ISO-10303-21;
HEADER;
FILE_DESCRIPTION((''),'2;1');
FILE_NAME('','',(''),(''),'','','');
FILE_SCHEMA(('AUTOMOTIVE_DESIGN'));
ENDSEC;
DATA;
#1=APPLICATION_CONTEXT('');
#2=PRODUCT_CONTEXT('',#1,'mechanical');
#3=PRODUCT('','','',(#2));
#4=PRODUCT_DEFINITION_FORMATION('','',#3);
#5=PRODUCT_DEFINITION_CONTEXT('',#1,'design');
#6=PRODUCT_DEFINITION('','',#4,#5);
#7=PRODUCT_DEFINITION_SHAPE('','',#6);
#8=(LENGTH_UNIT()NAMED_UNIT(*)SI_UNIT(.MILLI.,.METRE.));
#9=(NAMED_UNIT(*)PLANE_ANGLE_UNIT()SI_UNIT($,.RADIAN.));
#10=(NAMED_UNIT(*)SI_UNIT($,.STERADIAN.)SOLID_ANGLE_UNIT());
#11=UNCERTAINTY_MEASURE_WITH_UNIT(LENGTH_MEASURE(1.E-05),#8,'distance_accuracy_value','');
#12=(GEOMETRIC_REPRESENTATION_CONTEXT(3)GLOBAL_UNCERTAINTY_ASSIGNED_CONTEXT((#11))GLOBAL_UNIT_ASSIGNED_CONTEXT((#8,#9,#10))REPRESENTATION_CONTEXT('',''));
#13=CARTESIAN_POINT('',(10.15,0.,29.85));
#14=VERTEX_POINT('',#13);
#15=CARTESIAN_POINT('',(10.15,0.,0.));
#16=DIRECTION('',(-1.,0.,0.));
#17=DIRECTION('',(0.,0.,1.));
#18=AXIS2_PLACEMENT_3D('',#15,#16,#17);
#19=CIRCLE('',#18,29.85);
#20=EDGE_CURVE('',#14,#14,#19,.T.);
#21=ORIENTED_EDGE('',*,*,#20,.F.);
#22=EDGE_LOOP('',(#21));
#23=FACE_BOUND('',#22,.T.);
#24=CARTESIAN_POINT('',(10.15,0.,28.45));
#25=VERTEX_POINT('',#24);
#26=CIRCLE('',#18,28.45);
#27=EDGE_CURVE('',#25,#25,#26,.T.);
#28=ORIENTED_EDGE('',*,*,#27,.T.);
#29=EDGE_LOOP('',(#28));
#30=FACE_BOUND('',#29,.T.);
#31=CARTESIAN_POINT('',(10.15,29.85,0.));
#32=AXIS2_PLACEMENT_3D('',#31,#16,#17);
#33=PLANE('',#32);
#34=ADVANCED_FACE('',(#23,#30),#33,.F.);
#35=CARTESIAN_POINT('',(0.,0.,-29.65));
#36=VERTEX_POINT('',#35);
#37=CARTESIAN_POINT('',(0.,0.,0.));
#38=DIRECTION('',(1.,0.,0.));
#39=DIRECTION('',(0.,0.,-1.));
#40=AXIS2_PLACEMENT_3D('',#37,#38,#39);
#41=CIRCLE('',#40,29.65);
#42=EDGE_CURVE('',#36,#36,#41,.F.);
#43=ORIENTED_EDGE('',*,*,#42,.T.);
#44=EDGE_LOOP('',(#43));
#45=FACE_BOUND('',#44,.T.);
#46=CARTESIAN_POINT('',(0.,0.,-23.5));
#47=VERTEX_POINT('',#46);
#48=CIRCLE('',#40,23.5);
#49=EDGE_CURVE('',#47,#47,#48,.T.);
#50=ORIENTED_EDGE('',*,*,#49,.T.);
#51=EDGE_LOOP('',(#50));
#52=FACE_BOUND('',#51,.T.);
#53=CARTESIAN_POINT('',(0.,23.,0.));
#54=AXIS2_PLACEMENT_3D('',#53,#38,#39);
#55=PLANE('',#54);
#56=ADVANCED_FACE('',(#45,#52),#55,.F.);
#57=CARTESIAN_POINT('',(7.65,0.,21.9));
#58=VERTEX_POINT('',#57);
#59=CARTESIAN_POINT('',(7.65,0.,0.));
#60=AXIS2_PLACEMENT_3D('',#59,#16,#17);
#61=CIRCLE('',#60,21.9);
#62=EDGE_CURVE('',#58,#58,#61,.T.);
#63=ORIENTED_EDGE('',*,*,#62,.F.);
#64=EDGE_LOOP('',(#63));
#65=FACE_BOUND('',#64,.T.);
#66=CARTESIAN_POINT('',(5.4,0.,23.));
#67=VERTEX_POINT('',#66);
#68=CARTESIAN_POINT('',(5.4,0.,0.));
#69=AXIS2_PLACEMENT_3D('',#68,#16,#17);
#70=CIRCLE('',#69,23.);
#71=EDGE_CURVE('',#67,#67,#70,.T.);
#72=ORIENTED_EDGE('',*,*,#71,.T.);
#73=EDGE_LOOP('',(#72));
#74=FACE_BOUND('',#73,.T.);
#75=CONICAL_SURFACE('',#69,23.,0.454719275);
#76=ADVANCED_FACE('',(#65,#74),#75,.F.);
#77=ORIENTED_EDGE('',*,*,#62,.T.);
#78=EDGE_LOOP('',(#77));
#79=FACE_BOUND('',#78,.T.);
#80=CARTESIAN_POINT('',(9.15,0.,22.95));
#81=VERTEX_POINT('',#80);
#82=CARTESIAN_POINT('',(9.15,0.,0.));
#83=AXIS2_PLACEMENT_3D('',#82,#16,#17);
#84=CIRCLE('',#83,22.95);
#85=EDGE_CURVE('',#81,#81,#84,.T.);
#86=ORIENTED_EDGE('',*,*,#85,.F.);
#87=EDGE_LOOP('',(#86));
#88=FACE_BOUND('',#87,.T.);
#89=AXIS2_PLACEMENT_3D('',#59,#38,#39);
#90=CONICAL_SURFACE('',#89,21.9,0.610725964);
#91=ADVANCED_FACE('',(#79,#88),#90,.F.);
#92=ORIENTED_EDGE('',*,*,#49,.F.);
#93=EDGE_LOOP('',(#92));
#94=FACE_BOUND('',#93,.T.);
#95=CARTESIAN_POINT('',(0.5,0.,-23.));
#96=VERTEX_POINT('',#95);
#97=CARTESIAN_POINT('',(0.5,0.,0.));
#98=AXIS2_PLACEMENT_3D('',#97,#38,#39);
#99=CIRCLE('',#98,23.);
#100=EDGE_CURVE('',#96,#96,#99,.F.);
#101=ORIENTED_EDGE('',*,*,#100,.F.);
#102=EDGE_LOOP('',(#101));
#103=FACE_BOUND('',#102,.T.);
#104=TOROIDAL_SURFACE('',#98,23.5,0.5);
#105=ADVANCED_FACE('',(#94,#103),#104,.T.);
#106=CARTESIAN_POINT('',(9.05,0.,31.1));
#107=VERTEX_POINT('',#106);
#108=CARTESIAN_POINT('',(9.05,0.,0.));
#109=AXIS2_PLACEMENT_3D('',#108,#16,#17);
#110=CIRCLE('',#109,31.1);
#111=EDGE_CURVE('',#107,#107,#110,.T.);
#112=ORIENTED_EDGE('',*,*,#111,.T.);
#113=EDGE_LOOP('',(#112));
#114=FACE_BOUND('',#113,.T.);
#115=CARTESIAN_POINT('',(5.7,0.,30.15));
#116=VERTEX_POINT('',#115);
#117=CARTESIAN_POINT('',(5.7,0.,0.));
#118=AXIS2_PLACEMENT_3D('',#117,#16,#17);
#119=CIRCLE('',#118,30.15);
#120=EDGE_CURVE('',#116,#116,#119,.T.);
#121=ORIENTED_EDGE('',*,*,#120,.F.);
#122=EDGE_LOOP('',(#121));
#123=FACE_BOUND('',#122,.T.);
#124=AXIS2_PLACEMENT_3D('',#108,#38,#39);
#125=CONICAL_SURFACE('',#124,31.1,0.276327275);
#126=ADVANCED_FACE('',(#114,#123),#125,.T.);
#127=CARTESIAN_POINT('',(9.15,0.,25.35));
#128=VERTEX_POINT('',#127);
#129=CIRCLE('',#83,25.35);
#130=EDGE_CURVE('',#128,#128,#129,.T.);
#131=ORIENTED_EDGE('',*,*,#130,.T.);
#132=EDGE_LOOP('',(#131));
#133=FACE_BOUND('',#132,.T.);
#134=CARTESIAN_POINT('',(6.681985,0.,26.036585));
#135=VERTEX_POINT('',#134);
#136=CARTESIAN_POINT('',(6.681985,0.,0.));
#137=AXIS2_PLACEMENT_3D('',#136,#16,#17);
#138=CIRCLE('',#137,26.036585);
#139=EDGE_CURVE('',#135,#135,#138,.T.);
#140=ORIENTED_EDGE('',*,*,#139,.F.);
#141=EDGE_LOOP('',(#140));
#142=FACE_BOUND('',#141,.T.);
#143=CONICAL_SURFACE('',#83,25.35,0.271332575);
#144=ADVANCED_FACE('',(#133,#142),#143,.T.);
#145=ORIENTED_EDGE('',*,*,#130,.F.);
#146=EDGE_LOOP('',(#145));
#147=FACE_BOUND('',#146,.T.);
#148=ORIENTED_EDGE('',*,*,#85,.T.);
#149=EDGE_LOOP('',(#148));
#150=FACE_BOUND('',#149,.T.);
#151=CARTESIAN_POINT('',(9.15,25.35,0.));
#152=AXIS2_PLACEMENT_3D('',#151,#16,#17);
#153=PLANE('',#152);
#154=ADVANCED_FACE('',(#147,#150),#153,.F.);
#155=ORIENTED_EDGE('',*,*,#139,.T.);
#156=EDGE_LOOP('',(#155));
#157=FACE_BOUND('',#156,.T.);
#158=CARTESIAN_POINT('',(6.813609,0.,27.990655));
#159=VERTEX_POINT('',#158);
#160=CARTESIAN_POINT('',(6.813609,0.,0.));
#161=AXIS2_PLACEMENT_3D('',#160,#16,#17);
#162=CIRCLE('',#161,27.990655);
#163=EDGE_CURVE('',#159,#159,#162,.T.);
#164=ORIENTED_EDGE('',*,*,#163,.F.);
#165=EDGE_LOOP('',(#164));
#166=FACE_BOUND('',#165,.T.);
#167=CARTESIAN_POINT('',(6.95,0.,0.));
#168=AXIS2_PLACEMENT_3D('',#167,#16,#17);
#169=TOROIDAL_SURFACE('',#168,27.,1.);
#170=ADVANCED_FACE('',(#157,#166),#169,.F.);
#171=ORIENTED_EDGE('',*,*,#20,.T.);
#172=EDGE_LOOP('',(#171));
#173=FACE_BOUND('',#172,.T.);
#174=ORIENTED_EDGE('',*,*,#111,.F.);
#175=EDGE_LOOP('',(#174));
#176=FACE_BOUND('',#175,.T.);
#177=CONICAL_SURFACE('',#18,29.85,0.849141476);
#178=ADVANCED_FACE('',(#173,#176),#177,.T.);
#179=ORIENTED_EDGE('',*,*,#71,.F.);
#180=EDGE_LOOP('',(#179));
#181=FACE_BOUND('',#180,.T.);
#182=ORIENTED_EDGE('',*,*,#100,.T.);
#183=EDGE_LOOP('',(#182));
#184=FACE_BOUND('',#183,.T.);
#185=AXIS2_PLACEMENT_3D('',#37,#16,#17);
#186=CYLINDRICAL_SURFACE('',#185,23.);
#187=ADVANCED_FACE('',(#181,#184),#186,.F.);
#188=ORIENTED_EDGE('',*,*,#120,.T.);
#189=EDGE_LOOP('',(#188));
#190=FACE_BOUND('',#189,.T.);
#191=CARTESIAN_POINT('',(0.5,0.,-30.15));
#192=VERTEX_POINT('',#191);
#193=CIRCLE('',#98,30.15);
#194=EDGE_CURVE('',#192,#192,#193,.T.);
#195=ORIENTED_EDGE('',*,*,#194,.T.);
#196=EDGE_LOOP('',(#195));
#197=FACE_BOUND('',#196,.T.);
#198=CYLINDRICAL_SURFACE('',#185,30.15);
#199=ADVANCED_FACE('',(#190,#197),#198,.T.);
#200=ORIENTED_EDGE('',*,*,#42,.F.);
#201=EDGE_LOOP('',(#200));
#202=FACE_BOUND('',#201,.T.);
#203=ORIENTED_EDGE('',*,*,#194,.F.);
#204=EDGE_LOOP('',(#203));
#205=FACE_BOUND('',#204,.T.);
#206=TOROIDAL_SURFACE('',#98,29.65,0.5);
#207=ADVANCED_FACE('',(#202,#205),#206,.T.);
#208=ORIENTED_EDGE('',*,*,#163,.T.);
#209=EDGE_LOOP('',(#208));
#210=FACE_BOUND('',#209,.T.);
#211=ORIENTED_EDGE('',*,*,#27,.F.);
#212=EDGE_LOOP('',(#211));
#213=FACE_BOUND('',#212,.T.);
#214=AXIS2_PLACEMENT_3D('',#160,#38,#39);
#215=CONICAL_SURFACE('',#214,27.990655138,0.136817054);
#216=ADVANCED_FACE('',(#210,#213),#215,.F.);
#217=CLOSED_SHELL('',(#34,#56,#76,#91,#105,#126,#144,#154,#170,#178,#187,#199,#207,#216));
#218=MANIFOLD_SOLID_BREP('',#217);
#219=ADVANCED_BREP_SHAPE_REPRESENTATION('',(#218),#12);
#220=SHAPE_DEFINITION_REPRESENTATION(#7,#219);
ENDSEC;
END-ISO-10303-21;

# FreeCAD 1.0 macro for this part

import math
import FreeCAD as App
import Part
import Sketcher


def edges_at(feature, points):
    """Names of the edges that pass closest to the given points."""
    edges = feature.Shape.Edges
    near = lambda p: min(range(len(edges)), key=lambda i: edges[i].distToShape(Part.Vertex(*p))[0])
    return sorted({f"Edge{near(p) + 1}" for p in points})

doc = App.newDocument("Part")
body = doc.addObject("PartDesign::Body", "Body")

# Sketch on XY plane
sketch1 = doc.addObject("Sketcher::SketchObject", "Sketch")
body.addObject(sketch1)
sketch1.AttachmentSupport = (doc.XY_Plane, [""])
sketch1.MapMode = "FlatFace"
sketch1.addGeometry([
    Part.LineSegment(App.Vector(0, 30.1, 0), App.Vector(0, 23, 0)),  # 0
    Part.LineSegment(App.Vector(0, 23, 0), App.Vector(5.4, 23, 0)),  # 1
    Part.LineSegment(App.Vector(5.4, 23, 0), App.Vector(7.7, 21.9, 0)),  # 2
    Part.LineSegment(App.Vector(7.7, 21.9, 0), App.Vector(9.2, 22.9, 0)),  # 3
    Part.LineSegment(App.Vector(9.2, 22.9, 0), App.Vector(9.2, 25.4, 0)),  # 4
    Part.LineSegment(App.Vector(9.2, 25.4, 0), App.Vector(6.7, 26, 0)),  # 5
    Part.ArcOfCircle(Part.Circle(App.Vector(7, 27, 0), App.Vector(0, 0, 1), 1), math.radians(98), math.radians(254)),  # 6
    Part.LineSegment(App.Vector(6.8, 28, 0), App.Vector(10.2, 28.4, 0)),  # 7
    Part.LineSegment(App.Vector(10.2, 28.4, 0), App.Vector(10.2, 29.9, 0)),  # 8
    Part.LineSegment(App.Vector(10.2, 29.9, 0), App.Vector(9.1, 31.1, 0)),  # 9
    Part.LineSegment(App.Vector(9.1, 31.1, 0), App.Vector(5.7, 30.1, 0)),  # 10
    Part.LineSegment(App.Vector(5.7, 30.1, 0), App.Vector(0, 30.1, 0)),  # 11
], False)
sketch1.addConstraint([
    Sketcher.Constraint("Coincident", 0, 2, 1, 1),
    Sketcher.Constraint("Coincident", 1, 2, 2, 1),
    Sketcher.Constraint("Coincident", 2, 2, 3, 1),
    Sketcher.Constraint("Coincident", 3, 2, 4, 1),
    Sketcher.Constraint("Coincident", 4, 2, 5, 1),
    Sketcher.Constraint("Tangent", 5, 2, 6, 2),
    Sketcher.Constraint("Tangent", 6, 1, 7, 1),
    Sketcher.Constraint("Coincident", 7, 2, 8, 1),
    Sketcher.Constraint("Coincident", 8, 2, 9, 1),
    Sketcher.Constraint("Coincident", 9, 2, 10, 1),
    Sketcher.Constraint("Coincident", 10, 2, 11, 1),
    Sketcher.Constraint("Coincident", 11, 2, 0, 1),
    Sketcher.Constraint("Vertical", 0),
    Sketcher.Constraint("Horizontal", 1),
    Sketcher.Constraint("Vertical", 4),
    Sketcher.Constraint("Vertical", 8),
    Sketcher.Constraint("Horizontal", 11),
    Sketcher.Constraint("PointOnObject", 0, 2, -2),
    Sketcher.Constraint("Radius", 6, 1.0),
    Sketcher.Constraint("DistanceX", 1, 1, 1, 2, 5.4),
    Sketcher.Constraint("DistanceX", 11, 2, 11, 1, 5.7),
    Sketcher.Constraint("DistanceY", 4, 1, 4, 2, 2.4),
    Sketcher.Constraint("DistanceY", 8, 1, 8, 2, 1.4),
    Sketcher.Constraint("DistanceY", -1, 1, 6, 3, 27.0),
    Sketcher.Constraint("DistanceY", -1, 1, 0, 2, 23.0),
    Sketcher.Constraint("DistanceX", 4, 2, 7, 2, 1.0),
    Sketcher.Constraint("DistanceY", 0, 2, 0, 1, 7.15),
    Sketcher.Constraint("DistanceY", -1, 1, 2, 2, 21.9),
    Sketcher.Constraint("DistanceY", -1, 1, 9, 2, 31.1),
    Sketcher.Constraint("DistanceX", 6, 3, 2, 2, 0.7),
    Sketcher.Constraint("DistanceX", 2, 2, 3, 2, 1.5),
    Sketcher.Constraint("DistanceY", 4, 2, 7, 2, 3.1),
    Sketcher.Constraint("DistanceX", 9, 2, 8, 2, 1.1),
    Sketcher.Constraint("DistanceY", 8, 2, 10, 2, 0.3),
    Sketcher.Constraint("DistanceX", -1, 1, 6, 3, 6.95),
])
revolution = doc.addObject("PartDesign::Revolution", "Revolution")
body.addObject(revolution)
revolution.Profile = sketch1
revolution.ReferenceAxis = (sketch1, ["H_Axis"])
revolution.Angle = 360
doc.recompute()

fillet = doc.addObject("PartDesign::Fillet", "Fillet")
body.addObject(fillet)
fillet.Base = (revolution, edges_at(revolution, [(0, 0, -30.15), (0, 0, -23)]))
fillet.Radius = 0.5

doc.recompute()
